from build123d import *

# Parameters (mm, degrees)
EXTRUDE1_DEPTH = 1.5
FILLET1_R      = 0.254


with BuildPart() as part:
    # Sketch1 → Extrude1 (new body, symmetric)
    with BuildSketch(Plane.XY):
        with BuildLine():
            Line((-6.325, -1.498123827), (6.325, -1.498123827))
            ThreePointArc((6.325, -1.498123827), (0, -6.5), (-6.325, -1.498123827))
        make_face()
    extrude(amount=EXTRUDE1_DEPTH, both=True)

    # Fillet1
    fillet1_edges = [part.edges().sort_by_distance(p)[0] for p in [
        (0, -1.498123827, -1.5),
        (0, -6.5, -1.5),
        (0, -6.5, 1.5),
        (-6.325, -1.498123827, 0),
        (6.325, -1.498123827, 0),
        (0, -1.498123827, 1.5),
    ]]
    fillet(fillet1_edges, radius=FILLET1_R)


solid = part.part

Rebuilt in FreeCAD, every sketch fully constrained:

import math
import FreeCAD as App
import Part
import Sketcher
from FreeCAD import Vector

doc = App.newDocument("Part")
body = doc.addObject("PartDesign::Body", "Body")

# Sketch on XY plane
sketch1 = body.newObject("Sketcher::SketchObject", "Sketch")
sketch1.AttachmentSupport = (doc.getObject("XY_Plane"), [""])
sketch1.MapMode = "FlatFace"
sketch1.addGeometry([
    Part.LineSegment(Vector(6.325, -1.498124, 0), Vector(-6.325, -1.498124, 0)),
    Part.ArcOfCircle(Part.Circle(Vector(0, 0, 0), Vector(0, 0, 1), 6.5), math.radians(-166.674632), math.radians(-13.325368)),
], False)
sketch1.addConstraint([
    Sketcher.Constraint("Coincident", 0, 1, 1, 2),
    Sketcher.Constraint("Coincident", 1, 1, 0, 2),
    Sketcher.Constraint("Horizontal", 0),
    Sketcher.Constraint("Coincident", 1, 3, -1, 1),
    Sketcher.Constraint("Radius", 1, 6.5),
    Sketcher.Constraint("DistanceX", 0, 2, 0, 1, 12.65),
])
pad1 = body.newObject("PartDesign::Pad", "Pad")
pad1.Profile = sketch1
pad1.Length = 3
pad1.Midplane = True
doc.recompute()

fillet = body.newObject("PartDesign::Fillet", "Fillet")
fillet.Base = (pad1, ["Edge1"])
fillet.UseAllEdges = True
fillet.Radius = 0.254

doc.recompute()
